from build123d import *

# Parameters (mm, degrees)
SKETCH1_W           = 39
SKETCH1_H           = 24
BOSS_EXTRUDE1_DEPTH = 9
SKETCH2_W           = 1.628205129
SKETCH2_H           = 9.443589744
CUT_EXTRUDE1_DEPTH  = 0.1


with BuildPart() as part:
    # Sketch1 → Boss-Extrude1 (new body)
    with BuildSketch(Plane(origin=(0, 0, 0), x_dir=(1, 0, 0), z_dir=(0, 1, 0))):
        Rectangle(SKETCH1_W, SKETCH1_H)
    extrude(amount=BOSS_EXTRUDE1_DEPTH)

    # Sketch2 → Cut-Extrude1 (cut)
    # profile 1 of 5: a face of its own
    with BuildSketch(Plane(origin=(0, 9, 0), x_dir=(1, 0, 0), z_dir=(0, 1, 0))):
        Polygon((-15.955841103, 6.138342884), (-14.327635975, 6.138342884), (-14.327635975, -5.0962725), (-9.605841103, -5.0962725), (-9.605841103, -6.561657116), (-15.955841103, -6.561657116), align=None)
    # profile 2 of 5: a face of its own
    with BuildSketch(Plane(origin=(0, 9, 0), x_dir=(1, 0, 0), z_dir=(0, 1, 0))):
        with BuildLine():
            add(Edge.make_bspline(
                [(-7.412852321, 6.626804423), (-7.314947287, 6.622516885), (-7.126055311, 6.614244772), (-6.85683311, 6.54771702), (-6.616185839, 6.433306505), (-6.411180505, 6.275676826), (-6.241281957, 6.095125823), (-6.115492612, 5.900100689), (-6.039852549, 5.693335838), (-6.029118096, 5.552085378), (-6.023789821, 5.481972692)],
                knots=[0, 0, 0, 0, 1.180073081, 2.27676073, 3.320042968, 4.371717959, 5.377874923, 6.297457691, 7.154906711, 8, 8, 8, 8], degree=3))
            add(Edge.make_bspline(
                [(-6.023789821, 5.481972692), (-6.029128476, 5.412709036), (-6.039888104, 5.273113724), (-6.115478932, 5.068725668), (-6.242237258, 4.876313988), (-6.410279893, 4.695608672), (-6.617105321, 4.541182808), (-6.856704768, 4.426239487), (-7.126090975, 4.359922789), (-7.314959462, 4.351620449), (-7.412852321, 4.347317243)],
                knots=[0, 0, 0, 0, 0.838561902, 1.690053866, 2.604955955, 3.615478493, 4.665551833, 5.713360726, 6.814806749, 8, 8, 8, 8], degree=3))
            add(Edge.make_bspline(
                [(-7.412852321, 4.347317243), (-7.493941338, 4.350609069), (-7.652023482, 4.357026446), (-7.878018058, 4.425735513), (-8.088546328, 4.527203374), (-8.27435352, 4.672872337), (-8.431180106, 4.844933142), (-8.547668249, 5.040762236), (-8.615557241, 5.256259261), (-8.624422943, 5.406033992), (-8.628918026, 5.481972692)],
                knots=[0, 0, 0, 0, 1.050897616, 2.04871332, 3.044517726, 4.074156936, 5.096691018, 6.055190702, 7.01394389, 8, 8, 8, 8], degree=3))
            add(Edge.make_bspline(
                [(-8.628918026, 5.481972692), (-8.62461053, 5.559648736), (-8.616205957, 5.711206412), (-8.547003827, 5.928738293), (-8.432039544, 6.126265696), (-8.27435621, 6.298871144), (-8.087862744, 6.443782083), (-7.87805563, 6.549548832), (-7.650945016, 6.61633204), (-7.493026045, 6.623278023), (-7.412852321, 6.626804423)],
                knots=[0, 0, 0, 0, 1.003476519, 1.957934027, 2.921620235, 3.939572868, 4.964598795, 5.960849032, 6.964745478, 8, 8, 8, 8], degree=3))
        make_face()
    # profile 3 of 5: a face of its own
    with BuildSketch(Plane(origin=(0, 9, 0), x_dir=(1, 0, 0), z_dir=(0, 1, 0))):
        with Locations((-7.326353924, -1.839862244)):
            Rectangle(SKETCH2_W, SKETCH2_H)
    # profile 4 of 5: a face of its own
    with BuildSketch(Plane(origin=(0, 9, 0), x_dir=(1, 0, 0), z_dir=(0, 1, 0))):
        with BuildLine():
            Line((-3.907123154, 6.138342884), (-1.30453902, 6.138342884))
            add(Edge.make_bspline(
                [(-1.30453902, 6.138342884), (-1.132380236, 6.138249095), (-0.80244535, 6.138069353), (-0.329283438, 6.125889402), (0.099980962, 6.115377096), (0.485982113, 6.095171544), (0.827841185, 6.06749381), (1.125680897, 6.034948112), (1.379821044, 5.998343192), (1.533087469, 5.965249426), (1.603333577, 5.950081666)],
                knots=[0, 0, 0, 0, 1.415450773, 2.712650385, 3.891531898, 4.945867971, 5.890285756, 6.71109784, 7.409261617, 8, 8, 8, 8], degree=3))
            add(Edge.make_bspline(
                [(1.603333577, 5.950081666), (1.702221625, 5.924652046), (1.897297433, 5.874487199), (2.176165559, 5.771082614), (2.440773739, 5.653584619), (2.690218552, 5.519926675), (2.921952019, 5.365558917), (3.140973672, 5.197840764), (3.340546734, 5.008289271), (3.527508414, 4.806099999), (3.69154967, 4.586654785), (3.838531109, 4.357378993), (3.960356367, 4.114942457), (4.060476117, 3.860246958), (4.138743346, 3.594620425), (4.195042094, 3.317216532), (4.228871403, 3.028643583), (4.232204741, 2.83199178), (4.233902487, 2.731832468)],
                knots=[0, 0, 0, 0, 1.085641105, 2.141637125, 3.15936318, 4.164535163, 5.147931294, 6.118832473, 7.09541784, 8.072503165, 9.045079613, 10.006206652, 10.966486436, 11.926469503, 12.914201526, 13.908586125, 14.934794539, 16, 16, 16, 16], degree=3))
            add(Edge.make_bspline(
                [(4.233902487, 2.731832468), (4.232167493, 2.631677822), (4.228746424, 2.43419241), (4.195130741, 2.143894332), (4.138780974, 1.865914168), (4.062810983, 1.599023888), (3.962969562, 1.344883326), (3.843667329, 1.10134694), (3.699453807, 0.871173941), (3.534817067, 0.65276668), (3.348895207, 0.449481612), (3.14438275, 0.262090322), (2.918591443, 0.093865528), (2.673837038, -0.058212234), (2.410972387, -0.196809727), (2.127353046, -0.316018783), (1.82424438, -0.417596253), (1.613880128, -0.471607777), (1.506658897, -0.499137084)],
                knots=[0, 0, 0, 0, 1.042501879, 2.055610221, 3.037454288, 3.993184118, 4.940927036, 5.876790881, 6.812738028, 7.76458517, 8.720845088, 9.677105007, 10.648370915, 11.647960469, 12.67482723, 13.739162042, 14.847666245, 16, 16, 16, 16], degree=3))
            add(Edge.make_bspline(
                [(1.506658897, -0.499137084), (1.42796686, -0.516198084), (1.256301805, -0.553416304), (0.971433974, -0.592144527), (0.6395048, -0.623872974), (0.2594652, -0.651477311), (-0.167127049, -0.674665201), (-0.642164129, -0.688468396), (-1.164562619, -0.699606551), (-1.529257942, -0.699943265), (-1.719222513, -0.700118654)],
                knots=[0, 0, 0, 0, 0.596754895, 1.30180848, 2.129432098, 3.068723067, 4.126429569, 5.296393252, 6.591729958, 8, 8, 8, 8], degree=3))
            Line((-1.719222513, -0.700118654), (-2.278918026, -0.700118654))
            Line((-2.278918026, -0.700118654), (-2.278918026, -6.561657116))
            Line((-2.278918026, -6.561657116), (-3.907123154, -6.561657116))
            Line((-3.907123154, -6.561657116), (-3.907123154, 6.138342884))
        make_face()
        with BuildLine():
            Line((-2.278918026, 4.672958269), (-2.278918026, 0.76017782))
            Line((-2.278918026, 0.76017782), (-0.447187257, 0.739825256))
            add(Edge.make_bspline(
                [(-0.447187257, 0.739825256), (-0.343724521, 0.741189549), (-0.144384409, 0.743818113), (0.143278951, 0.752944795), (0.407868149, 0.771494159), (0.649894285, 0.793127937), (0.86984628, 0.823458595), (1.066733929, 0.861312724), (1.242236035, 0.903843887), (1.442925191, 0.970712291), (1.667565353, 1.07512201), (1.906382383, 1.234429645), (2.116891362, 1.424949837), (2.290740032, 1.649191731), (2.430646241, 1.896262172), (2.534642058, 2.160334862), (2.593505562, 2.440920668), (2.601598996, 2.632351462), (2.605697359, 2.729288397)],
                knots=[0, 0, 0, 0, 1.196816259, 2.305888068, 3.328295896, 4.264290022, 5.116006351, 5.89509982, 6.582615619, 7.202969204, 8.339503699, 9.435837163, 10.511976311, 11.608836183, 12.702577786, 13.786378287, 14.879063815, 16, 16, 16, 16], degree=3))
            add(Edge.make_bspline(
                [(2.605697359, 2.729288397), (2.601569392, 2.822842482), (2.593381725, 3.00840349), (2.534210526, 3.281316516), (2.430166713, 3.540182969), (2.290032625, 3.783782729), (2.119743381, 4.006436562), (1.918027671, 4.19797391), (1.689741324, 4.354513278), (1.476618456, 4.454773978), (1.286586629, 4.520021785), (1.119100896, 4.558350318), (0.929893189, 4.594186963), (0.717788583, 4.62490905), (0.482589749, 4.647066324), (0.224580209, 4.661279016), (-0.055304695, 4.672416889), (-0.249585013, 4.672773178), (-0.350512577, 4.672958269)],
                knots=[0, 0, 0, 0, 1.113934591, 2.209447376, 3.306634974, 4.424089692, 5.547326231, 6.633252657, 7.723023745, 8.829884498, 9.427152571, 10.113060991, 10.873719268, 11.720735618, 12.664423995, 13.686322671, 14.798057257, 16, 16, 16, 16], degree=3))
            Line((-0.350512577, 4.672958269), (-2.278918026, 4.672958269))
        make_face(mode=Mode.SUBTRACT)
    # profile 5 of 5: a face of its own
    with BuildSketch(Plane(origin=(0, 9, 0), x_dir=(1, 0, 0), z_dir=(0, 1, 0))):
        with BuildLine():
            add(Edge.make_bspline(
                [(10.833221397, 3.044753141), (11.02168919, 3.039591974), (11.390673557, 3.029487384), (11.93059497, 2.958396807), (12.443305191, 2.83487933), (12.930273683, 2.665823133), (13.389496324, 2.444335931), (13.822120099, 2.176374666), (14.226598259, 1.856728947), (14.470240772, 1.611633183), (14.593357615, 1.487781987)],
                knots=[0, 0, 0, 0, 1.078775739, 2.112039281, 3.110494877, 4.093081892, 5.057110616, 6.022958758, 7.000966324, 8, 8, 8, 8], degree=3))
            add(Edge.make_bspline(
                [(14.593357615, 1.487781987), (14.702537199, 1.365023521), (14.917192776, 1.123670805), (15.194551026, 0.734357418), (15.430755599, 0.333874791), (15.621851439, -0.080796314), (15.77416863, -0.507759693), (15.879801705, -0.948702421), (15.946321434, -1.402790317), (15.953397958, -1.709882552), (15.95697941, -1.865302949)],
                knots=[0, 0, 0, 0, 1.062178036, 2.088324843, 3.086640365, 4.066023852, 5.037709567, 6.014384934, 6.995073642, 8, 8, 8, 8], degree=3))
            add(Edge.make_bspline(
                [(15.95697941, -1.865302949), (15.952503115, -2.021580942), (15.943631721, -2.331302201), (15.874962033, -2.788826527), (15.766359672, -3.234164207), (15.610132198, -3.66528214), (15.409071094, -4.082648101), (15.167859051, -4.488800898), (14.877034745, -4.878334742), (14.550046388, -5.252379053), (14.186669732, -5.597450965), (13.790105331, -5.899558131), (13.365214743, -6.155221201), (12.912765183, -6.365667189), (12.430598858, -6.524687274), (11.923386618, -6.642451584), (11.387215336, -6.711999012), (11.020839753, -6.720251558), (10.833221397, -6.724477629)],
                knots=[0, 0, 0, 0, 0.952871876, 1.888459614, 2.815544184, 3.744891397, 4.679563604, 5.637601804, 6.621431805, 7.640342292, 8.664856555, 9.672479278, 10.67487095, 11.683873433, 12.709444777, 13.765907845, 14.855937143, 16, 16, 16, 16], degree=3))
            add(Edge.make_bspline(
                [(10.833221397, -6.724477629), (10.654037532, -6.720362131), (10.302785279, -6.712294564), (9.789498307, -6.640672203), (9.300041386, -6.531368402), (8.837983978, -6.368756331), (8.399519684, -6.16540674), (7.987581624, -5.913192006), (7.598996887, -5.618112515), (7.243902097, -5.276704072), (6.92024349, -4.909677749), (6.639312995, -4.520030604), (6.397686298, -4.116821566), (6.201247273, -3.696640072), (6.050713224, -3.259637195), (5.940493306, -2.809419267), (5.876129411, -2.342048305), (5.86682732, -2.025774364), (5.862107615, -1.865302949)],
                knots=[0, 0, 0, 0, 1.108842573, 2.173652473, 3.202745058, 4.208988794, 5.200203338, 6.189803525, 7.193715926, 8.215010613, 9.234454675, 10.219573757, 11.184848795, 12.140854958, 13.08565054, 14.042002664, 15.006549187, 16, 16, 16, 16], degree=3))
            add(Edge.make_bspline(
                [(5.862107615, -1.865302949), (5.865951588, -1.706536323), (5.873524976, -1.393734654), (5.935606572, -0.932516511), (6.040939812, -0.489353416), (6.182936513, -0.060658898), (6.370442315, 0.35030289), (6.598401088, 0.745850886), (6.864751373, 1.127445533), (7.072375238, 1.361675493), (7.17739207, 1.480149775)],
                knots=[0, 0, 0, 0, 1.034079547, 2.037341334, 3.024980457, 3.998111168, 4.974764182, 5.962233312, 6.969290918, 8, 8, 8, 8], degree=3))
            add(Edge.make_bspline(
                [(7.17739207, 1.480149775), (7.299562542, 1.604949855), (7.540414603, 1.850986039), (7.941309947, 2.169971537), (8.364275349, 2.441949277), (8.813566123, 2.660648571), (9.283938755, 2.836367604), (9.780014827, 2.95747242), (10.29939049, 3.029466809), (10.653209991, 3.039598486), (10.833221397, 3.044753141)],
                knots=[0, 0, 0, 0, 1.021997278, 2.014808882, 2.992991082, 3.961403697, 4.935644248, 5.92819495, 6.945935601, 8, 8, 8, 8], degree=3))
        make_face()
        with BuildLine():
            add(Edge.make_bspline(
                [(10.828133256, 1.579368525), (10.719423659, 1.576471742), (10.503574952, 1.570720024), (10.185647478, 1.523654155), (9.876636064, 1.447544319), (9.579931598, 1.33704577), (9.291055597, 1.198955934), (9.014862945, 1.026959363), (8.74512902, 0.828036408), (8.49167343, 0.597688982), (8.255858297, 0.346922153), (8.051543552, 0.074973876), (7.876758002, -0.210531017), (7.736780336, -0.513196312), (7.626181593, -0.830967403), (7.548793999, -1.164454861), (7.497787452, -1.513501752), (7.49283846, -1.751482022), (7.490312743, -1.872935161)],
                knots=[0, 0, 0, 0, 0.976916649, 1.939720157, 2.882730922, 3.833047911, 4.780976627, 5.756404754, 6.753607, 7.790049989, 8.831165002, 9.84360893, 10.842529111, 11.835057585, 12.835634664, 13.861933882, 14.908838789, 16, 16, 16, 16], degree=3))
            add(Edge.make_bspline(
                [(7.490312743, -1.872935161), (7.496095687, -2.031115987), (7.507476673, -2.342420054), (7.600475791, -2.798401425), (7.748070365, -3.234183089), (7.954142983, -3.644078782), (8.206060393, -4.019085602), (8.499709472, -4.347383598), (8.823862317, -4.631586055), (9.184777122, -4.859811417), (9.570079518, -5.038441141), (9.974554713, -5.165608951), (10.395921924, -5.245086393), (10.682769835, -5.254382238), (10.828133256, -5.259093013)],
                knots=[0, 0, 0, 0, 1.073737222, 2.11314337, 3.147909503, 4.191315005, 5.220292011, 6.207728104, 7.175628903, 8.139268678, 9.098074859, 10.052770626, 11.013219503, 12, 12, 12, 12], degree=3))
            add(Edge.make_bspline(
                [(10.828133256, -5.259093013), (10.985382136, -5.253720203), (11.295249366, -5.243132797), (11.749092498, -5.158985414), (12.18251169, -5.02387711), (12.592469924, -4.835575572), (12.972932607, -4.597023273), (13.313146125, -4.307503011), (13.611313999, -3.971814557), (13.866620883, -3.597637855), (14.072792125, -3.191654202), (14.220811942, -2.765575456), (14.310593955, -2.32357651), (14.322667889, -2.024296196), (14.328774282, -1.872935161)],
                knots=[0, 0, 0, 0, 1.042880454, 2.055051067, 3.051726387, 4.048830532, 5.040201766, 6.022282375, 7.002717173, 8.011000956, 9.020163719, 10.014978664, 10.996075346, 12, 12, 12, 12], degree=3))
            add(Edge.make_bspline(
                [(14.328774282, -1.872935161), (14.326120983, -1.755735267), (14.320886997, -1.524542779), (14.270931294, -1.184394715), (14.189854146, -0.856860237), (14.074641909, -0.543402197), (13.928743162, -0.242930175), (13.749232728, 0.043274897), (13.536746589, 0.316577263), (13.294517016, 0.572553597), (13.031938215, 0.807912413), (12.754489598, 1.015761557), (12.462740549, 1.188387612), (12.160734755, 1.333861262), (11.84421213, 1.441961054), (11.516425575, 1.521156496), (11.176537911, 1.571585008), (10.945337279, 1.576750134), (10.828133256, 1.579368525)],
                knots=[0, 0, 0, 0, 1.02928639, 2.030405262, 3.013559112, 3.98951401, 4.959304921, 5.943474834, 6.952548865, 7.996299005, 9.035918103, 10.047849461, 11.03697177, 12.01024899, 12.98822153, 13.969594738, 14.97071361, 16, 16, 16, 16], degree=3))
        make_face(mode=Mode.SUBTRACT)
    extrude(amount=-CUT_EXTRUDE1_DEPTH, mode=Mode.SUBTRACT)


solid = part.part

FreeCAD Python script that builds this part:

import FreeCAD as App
import Part
import Sketcher

V = App.Vector


def add_polygon(sketch, points):
    """Adds a closed chain of lines whose ends are joined by coincident constraints."""
    first, n = sketch.GeometryCount, len(points)
    for a, b in zip(points, points[1:] + points[:1]):
        sketch.addGeometry(Part.LineSegment(App.Vector(*a, 0), App.Vector(*b, 0)), False)
    for i in range(n):
        sketch.addConstraint(Sketcher.Constraint("Coincident", first + i, 2, first + (i + 1) % n, 1))

doc = App.newDocument("Part")
body = doc.addObject("PartDesign::Body", "Body")

# Sketch on XZ plane
sketch1 = body.newObject("Sketcher::SketchObject", "Sketch")
sketch1.AttachmentSupport = (doc.getObject("XZ_Plane"), [""])
sketch1.MapMode = "FlatFace"
add_polygon(sketch1, [(-19.5, -12), (-19.5, 12), (19.5, 12), (19.5, -12)])  # lines 0-3
sketch1.addConstraint([
    Sketcher.Constraint("Vertical", 0),
    Sketcher.Constraint("Horizontal", 1),
    Sketcher.Constraint("Vertical", 2),
    Sketcher.Constraint("Horizontal", 3),
    Sketcher.Constraint("Symmetric", 0, 2, 2, 2, -1, 1),
    Sketcher.Constraint("DistanceX", 1, 1, 1, 2, 39.0),
    Sketcher.Constraint("DistanceY", 0, 1, 0, 2, 24.0),
])
pad1 = body.newObject("PartDesign::Pad", "Pad")
pad1.Profile = sketch1
pad1.Length = 9
pad1.Reversed = True

# Sketch on XZ plane
sketch2 = body.newObject("Sketcher::SketchObject", "Sketch001")
sketch2.AttachmentSupport = (doc.getObject("XZ_Plane"), [""])
sketch2.MapMode = "FlatFace"
sketch2.AttachmentOffset = App.Placement(V(0, 0, -9), App.Rotation())
add_polygon(sketch2, [(-14.327636, -6.138343), (-15.955841, -6.138343), (-15.955841, 6.561657), (-9.605841, 6.561657), (-9.605841, 5.096273), (-14.327636, 5.096273)])  # lines 0-5
sketch2.addGeometry(Part.BSplineCurve([V(-7.412852, -6.626804, 0), V(-7.314947, -6.622517, 0), V(-7.126055, -6.614245, 0), V(-6.856833, -6.547717, 0), V(-6.616186, -6.433307, 0), V(-6.411181, -6.275677, 0), V(-6.241282, -6.095126, 0), V(-6.115493, -5.900101, 0), V(-6.039853, -5.693336, 0), V(-6.029118, -5.552085, 0), V(-6.02379, -5.481973, 0)], [4, 1, 1, 1, 1, 1, 1, 1, 4], [0, 1.180073081, 2.27676073, 3.320042968, 4.371717959, 5.377874923, 6.297457691, 7.154906711, 8], False, 3, [1, 1, 1, 1, 1, 1, 1, 1, 1, 1, 1], False), False)  # 6
sketch2.addGeometry(Part.BSplineCurve([V(-8.628918, -5.481973, 0), V(-8.624611, -5.559649, 0), V(-8.616206, -5.711206, 0), V(-8.547004, -5.928738, 0), V(-8.43204, -6.126266, 0), V(-8.274356, -6.298871, 0), V(-8.087863, -6.443782, 0), V(-7.878056, -6.549549, 0), V(-7.650945, -6.616332, 0), V(-7.493026, -6.623278, 0), V(-7.412852, -6.626804, 0)], [4, 1, 1, 1, 1, 1, 1, 1, 4], [0, 1.003476519, 1.957934027, 2.921620235, 3.939572868, 4.964598795, 5.960849032, 6.964745478, 8], False, 3, [1, 1, 1, 1, 1, 1, 1, 1, 1, 1, 1], False), False)  # 7
sketch2.addGeometry(Part.BSplineCurve([V(-7.412852, -4.347317, 0), V(-7.493941, -4.350609, 0), V(-7.652023, -4.357026, 0), V(-7.878018, -4.425736, 0), V(-8.088546, -4.527203, 0), V(-8.274354, -4.672872, 0), V(-8.43118, -4.844933, 0), V(-8.547668, -5.040762, 0), V(-8.615557, -5.256259, 0), V(-8.624423, -5.406034, 0), V(-8.628918, -5.481973, 0)], [4, 1, 1, 1, 1, 1, 1, 1, 4], [0, 1.050897616, 2.04871332, 3.044517726, 4.074156936, 5.096691018, 6.055190702, 7.01394389, 8], False, 3, [1, 1, 1, 1, 1, 1, 1, 1, 1, 1, 1], False), False)  # 8
sketch2.addGeometry(Part.BSplineCurve([V(-6.02379, -5.481973, 0), V(-6.029128, -5.412709, 0), V(-6.039888, -5.273114, 0), V(-6.115479, -5.068726, 0), V(-6.242237, -4.876314, 0), V(-6.41028, -4.695609, 0), V(-6.617105, -4.541183, 0), V(-6.856705, -4.426239, 0), V(-7.126091, -4.359923, 0), V(-7.314959, -4.35162, 0), V(-7.412852, -4.347317, 0)], [4, 1, 1, 1, 1, 1, 1, 1, 4], [0, 0.838561902, 1.690053866, 2.604955955, 3.615478493, 4.665551833, 5.713360726, 6.814806749, 8], False, 3, [1, 1, 1, 1, 1, 1, 1, 1, 1, 1, 1], False), False)  # 9
add_polygon(sketch2, [(-8.140456, -2.881933), (-8.140456, 6.561657), (-6.512251, 6.561657), (-6.512251, -2.881933)])  # lines 10-13
sketch2.addGeometry(Part.LineSegment(V(-1.304539, -6.138343, 0), V(-3.907123, -6.138343, 0)), False)  # 14
sketch2.addGeometry(Part.LineSegment(V(-3.907123, -6.138343, 0), V(-3.907123, 6.561657, 0)), False)  # 15
sketch2.addGeometry(Part.LineSegment(V(-3.907123, 6.561657, 0), V(-2.278918, 6.561657, 0)), False)  # 16
sketch2.addGeometry(Part.LineSegment(V(-2.278918, 6.561657, 0), V(-2.278918, 0.700119, 0)), False)  # 17
sketch2.addGeometry(Part.LineSegment(V(-2.278918, 0.700119, 0), V(-1.719223, 0.700119, 0)), False)  # 18
sketch2.addGeometry(Part.BSplineCurve([V(1.506659, 0.499137, 0), V(1.427967, 0.516198, 0), V(1.256302, 0.553416, 0), V(0.971434, 0.592145, 0), V(0.639505, 0.623873, 0), V(0.259465, 0.651477, 0), V(-0.167127, 0.674665, 0), V(-0.642164, 0.688468, 0), V(-1.164563, 0.699607, 0), V(-1.529258, 0.699943, 0), V(-1.719223, 0.700119, 0)], [4, 1, 1, 1, 1, 1, 1, 1, 4], [0, 0.596754895, 1.30180848, 2.129432098, 3.068723067, 4.126429569, 5.296393252, 6.591729958, 8], False, 3, [1, 1, 1, 1, 1, 1, 1, 1, 1, 1, 1], False), False)  # 19
sketch2.addGeometry(Part.BSplineCurve([V(4.233902, -2.731832, 0), V(4.232167, -2.631678, 0), V(4.228746, -2.434192, 0), V(4.195131, -2.143894, 0), V(4.138781, -1.865914, 0), V(4.062811, -1.599024, 0), V(3.96297, -1.344883, 0), V(3.843667, -1.101347, 0), V(3.699454, -0.871174, 0), V(3.534817, -0.652767, 0), V(3.348895, -0.449482, 0), V(3.144383, -0.26209, 0), V(2.918591, -0.093866, 0), V(2.673837, 0.058212, 0), V(2.410972, 0.19681, 0), V(2.127353, 0.316019, 0), V(1.824244, 0.417596, 0), V(1.61388, 0.471608, 0), V(1.506659, 0.499137, 0)], [4, 1, 1, 1, 1, 1, 1, 1, 1, 1, 1, 1, 1, 1, 1, 1, 4], [0, 1.042501879, 2.055610221, 3.037454288, 3.993184118, 4.940927036, 5.876790881, 6.812738028, 7.76458517, 8.720845088, 9.677105007, 10.648370915, 11.647960469, 12.67482723, 13.739162042, 14.847666245, 16], False, 3, [1, 1, 1, 1, 1, 1, 1, 1, 1, 1, 1, 1, 1, 1, 1, 1, 1, 1, 1], False), False)  # 20
sketch2.addGeometry(Part.BSplineCurve([V(1.603334, -5.950082, 0), V(1.702222, -5.924652, 0), V(1.897297, -5.874487, 0), V(2.176166, -5.771083, 0), V(2.440774, -5.653585, 0), V(2.690219, -5.519927, 0), V(2.921952, -5.365559, 0), V(3.140974, -5.197841, 0), V(3.340547, -5.008289, 0), V(3.527508, -4.8061, 0), V(3.69155, -4.586655, 0), V(3.838531, -4.357379, 0), V(3.960356, -4.114942, 0), V(4.060476, -3.860247, 0), V(4.138743, -3.59462, 0), V(4.195042, -3.317217, 0), V(4.228871, -3.028644, 0), V(4.232205, -2.831992, 0), V(4.233902, -2.731832, 0)], [4, 1, 1, 1, 1, 1, 1, 1, 1, 1, 1, 1, 1, 1, 1, 1, 4], [0, 1.085641105, 2.141637125, 3.15936318, 4.164535163, 5.147931294, 6.118832473, 7.09541784, 8.072503165, 9.045079613, 10.006206652, 10.966486436, 11.926469503, 12.914201526, 13.908586125, 14.934794539, 16], False, 3, [1, 1, 1, 1, 1, 1, 1, 1, 1, 1, 1, 1, 1, 1, 1, 1, 1, 1, 1], False), False)  # 21
sketch2.addGeometry(Part.BSplineCurve([V(-1.304539, -6.138343, 0), V(-1.13238, -6.138249, 0), V(-0.802445, -6.138069, 0), V(-0.329283, -6.125889, 0), V(0.099981, -6.115377, 0), V(0.485982, -6.095172, 0), V(0.827841, -6.067494, 0), V(1.125681, -6.034948, 0), V(1.379821, -5.998343, 0), V(1.533087, -5.965249, 0), V(1.603334, -5.950082, 0)], [4, 1, 1, 1, 1, 1, 1, 1, 4], [0, 1.415450773, 2.712650385, 3.891531898, 4.945867971, 5.890285756, 6.71109784, 7.409261617, 8], False, 3, [1, 1, 1, 1, 1, 1, 1, 1, 1, 1, 1], False), False)  # 22
sketch2.addGeometry(Part.LineSegment(V(-2.278918, -4.672958, 0), V(-0.350513, -4.672958, 0)), False)  # 23
sketch2.addGeometry(Part.BSplineCurve([V(2.605697, -2.729288, 0), V(2.601569, -2.822842, 0), V(2.593382, -3.008403, 0), V(2.534211, -3.281317, 0), V(2.430167, -3.540183, 0), V(2.290033, -3.783783, 0), V(2.119743, -4.006437, 0), V(1.918028, -4.197974, 0), V(1.689741, -4.354513, 0), V(1.476618, -4.454774, 0), V(1.286587, -4.520022, 0), V(1.119101, -4.55835, 0), V(0.929893, -4.594187, 0), V(0.717789, -4.624909, 0), V(0.48259, -4.647066, 0), V(0.22458, -4.661279, 0), V(-0.055305, -4.672417, 0), V(-0.249585, -4.672773, 0), V(-0.350513, -4.672958, 0)], [4, 1, 1, 1, 1, 1, 1, 1, 1, 1, 1, 1, 1, 1, 1, 1, 4], [0, 1.113934591, 2.209447376, 3.306634974, 4.424089692, 5.547326231, 6.633252657, 7.723023745, 8.829884498, 9.427152571, 10.113060991, 10.873719268, 11.720735618, 12.664423995, 13.686322671, 14.798057257, 16], False, 3, [1, 1, 1, 1, 1, 1, 1, 1, 1, 1, 1, 1, 1, 1, 1, 1, 1, 1, 1], False), False)  # 24
sketch2.addGeometry(Part.BSplineCurve([V(-0.447187, -0.739825, 0), V(-0.343725, -0.74119, 0), V(-0.144384, -0.743818, 0), V(0.143279, -0.752945, 0), V(0.407868, -0.771494, 0), V(0.649894, -0.793128, 0), V(0.869846, -0.823459, 0), V(1.066734, -0.861313, 0), V(1.242236, -0.903844, 0), V(1.442925, -0.970712, 0), V(1.667565, -1.075122, 0), V(1.906382, -1.23443, 0), V(2.116891, -1.42495, 0), V(2.29074, -1.649192, 0), V(2.430646, -1.896262, 0), V(2.534642, -2.160335, 0), V(2.593506, -2.440921, 0), V(2.601599, -2.632351, 0), V(2.605697, -2.729288, 0)], [4, 1, 1, 1, 1, 1, 1, 1, 1, 1, 1, 1, 1, 1, 1, 1, 4], [0, 1.196816259, 2.305888068, 3.328295896, 4.264290022, 5.116006351, 5.89509982, 6.582615619, 7.202969204, 8.339503699, 9.435837163, 10.511976311, 11.608836183, 12.702577786, 13.786378287, 14.879063815, 16], False, 3, [1, 1, 1, 1, 1, 1, 1, 1, 1, 1, 1, 1, 1, 1, 1, 1, 1, 1, 1], False), False)  # 25
sketch2.addGeometry(Part.LineSegment(V(-0.447187, -0.739825, 0), V(-2.278918, -0.760178, 0)), False)  # 26
sketch2.addGeometry(Part.LineSegment(V(-2.278918, -0.760178, 0), V(-2.278918, -4.672958, 0)), False)  # 27
sketch2.addGeometry(Part.BSplineCurve([V(10.833221, -3.044753, 0), V(11.021689, -3.039592, 0), V(11.390674, -3.029487, 0), V(11.930595, -2.958397, 0), V(12.443305, -2.834879, 0), V(12.930274, -2.665823, 0), V(13.389496, -2.444336, 0), V(13.82212, -2.176375, 0), V(14.226598, -1.856729, 0), V(14.470241, -1.611633, 0), V(14.593358, -1.487782, 0)], [4, 1, 1, 1, 1, 1, 1, 1, 4], [0, 1.078775739, 2.112039281, 3.110494877, 4.093081892, 5.057110616, 6.022958758, 7.000966324, 8], False, 3, [1, 1, 1, 1, 1, 1, 1, 1, 1, 1, 1], False), False)  # 28
sketch2.addGeometry(Part.BSplineCurve([V(7.177392, -1.48015, 0), V(7.299563, -1.60495, 0), V(7.540415, -1.850986, 0), V(7.94131, -2.169972, 0), V(8.364275, -2.441949, 0), V(8.813566, -2.660649, 0), V(9.283939, -2.836368, 0), V(9.780015, -2.957472, 0), V(10.29939, -3.029467, 0), V(10.65321, -3.039598, 0), V(10.833221, -3.044753, 0)], [4, 1, 1, 1, 1, 1, 1, 1, 4], [0, 1.021997278, 2.014808882, 2.992991082, 3.961403697, 4.935644248, 5.92819495, 6.945935601, 8], False, 3, [1, 1, 1, 1, 1, 1, 1, 1, 1, 1, 1], False), False)  # 29
sketch2.addGeometry(Part.BSplineCurve([V(5.862108, 1.865303, 0), V(5.865952, 1.706536, 0), V(5.873525, 1.393735, 0), V(5.935607, 0.932517, 0), V(6.04094, 0.489353, 0), V(6.182937, 0.060659, 0), V(6.370442, -0.350303, 0), V(6.598401, -0.745851, 0), V(6.864751, -1.127446, 0), V(7.072375, -1.361675, 0), V(7.177392, -1.48015, 0)], [4, 1, 1, 1, 1, 1, 1, 1, 4], [0, 1.034079547, 2.037341334, 3.024980457, 3.998111168, 4.974764182, 5.962233312, 6.969290918, 8], False, 3, [1, 1, 1, 1, 1, 1, 1, 1, 1, 1, 1], False), False)  # 30
sketch2.addGeometry(Part.BSplineCurve([V(10.833221, 6.724478, 0), V(10.654038, 6.720362, 0), V(10.302785, 6.712295, 0), V(9.789498, 6.640672, 0), V(9.300041, 6.531368, 0), V(8.837984, 6.368756, 0), V(8.39952, 6.165407, 0), V(7.987582, 5.913192, 0), V(7.598997, 5.618113, 0), V(7.243902, 5.276704, 0), V(6.920243, 4.909678, 0), V(6.639313, 4.520031, 0), V(6.397686, 4.116822, 0), V(6.201247, 3.69664, 0), V(6.050713, 3.259637, 0), V(5.940493, 2.809419, 0), V(5.876129, 2.342048, 0), V(5.866827, 2.025774, 0), V(5.862108, 1.865303, 0)], [4, 1, 1, 1, 1, 1, 1, 1, 1, 1, 1, 1, 1, 1, 1, 1, 4], [0, 1.108842573, 2.173652473, 3.202745058, 4.208988794, 5.200203338, 6.189803525, 7.193715926, 8.215010613, 9.234454675, 10.219573757, 11.184848795, 12.140854958, 13.08565054, 14.042002664, 15.006549187, 16], False, 3, [1, 1, 1, 1, 1, 1, 1, 1, 1, 1, 1, 1, 1, 1, 1, 1, 1, 1, 1], False), False)  # 31
sketch2.addGeometry(Part.BSplineCurve([V(15.956979, 1.865303, 0), V(15.952503, 2.021581, 0), V(15.943632, 2.331302, 0), V(15.874962, 2.788827, 0), V(15.76636, 3.234164, 0), V(15.610132, 3.665282, 0), V(15.409071, 4.082648, 0), V(15.167859, 4.488801, 0), V(14.877035, 4.878335, 0), V(14.550046, 5.252379, 0), V(14.18667, 5.597451, 0), V(13.790105, 5.899558, 0), V(13.365215, 6.155221, 0), V(12.912765, 6.365667, 0), V(12.430599, 6.524687, 0), V(11.923387, 6.642452, 0), V(11.387215, 6.711999, 0), V(11.02084, 6.720252, 0), V(10.833221, 6.724478, 0)], [4, 1, 1, 1, 1, 1, 1, 1, 1, 1, 1, 1, 1, 1, 1, 1, 4], [0, 0.952871876, 1.888459614, 2.815544184, 3.744891397, 4.679563604, 5.637601804, 6.621431805, 7.640342292, 8.664856555, 9.672479278, 10.67487095, 11.683873433, 12.709444777, 13.765907845, 14.855937143, 16], False, 3, [1, 1, 1, 1, 1, 1, 1, 1, 1, 1, 1, 1, 1, 1, 1, 1, 1, 1, 1], False), False)  # 32
sketch2.addGeometry(Part.BSplineCurve([V(14.593358, -1.487782, 0), V(14.702537, -1.365024, 0), V(14.917193, -1.123671, 0), V(15.194551, -0.734357, 0), V(15.430756, -0.333875, 0), V(15.621851, 0.080796, 0), V(15.774169, 0.50776, 0), V(15.879802, 0.948702, 0), V(15.946321, 1.40279, 0), V(15.953398, 1.709883, 0), V(15.956979, 1.865303, 0)], [4, 1, 1, 1, 1, 1, 1, 1, 4], [0, 1.062178036, 2.088324843, 3.086640365, 4.066023852, 5.037709567, 6.014384934, 6.995073642, 8], False, 3, [1, 1, 1, 1, 1, 1, 1, 1, 1, 1, 1], False), False)  # 33
sketch2.addGeometry(Part.BSplineCurve([V(14.328774, 1.872935, 0), V(14.326121, 1.755735, 0), V(14.320887, 1.524543, 0), V(14.270931, 1.184395, 0), V(14.189854, 0.85686, 0), V(14.074642, 0.543402, 0), V(13.928743, 0.24293, 0), V(13.749233, -0.043275, 0), V(13.536747, -0.316577, 0), V(13.294517, -0.572554, 0), V(13.031938, -0.807912, 0), V(12.75449, -1.015762, 0), V(12.462741, -1.188388, 0), V(12.160735, -1.333861, 0), V(11.844212, -1.441961, 0), V(11.516426, -1.521156, 0), V(11.176538, -1.571585, 0), V(10.945337, -1.57675, 0), V(10.828133, -1.579369, 0)], [4, 1, 1, 1, 1, 1, 1, 1, 1, 1, 1, 1, 1, 1, 1, 1, 4], [0, 1.02928639, 2.030405262, 3.013559112, 3.98951401, 4.959304921, 5.943474834, 6.952548865, 7.996299005, 9.035918103, 10.047849461, 11.03697177, 12.01024899, 12.98822153, 13.969594738, 14.97071361, 16], False, 3, [1, 1, 1, 1, 1, 1, 1, 1, 1, 1, 1, 1, 1, 1, 1, 1, 1, 1, 1], False), False)  # 34
sketch2.addGeometry(Part.BSplineCurve([V(10.828133, 5.259093, 0), V(10.985382, 5.25372, 0), V(11.295249, 5.243133, 0), V(11.749092, 5.158985, 0), V(12.182512, 5.023877, 0), V(12.59247, 4.835576, 0), V(12.972933, 4.597023, 0), V(13.313146, 4.307503, 0), V(13.611314, 3.971815, 0), V(13.866621, 3.597638, 0), V(14.072792, 3.191654, 0), V(14.220812, 2.765575, 0), V(14.310594, 2.323577, 0), V(14.322668, 2.024296, 0), V(14.328774, 1.872935, 0)], [4, 1, 1, 1, 1, 1, 1, 1, 1, 1, 1, 1, 4], [0, 1.042880454, 2.055051067, 3.051726387, 4.048830532, 5.040201766, 6.022282375, 7.002717173, 8.011000956, 9.020163719, 10.014978664, 10.996075346, 12], False, 3, [1, 1, 1, 1, 1, 1, 1, 1, 1, 1, 1, 1, 1, 1, 1], False), False)  # 35
sketch2.addGeometry(Part.BSplineCurve([V(7.490313, 1.872935, 0), V(7.496096, 2.031116, 0), V(7.507477, 2.34242, 0), V(7.600476, 2.798401, 0), V(7.74807, 3.234183, 0), V(7.954143, 3.644079, 0), V(8.20606, 4.019086, 0), V(8.499709, 4.347384, 0), V(8.823862, 4.631586, 0), V(9.184777, 4.859811, 0), V(9.57008, 5.038441, 0), V(9.974555, 5.165609, 0), V(10.395922, 5.245086, 0), V(10.68277, 5.254382, 0), V(10.828133, 5.259093, 0)], [4, 1, 1, 1, 1, 1, 1, 1, 1, 1, 1, 1, 4], [0, 1.073737222, 2.11314337, 3.147909503, 4.191315005, 5.220292011, 6.207728104, 7.175628903, 8.139268678, 9.098074859, 10.052770626, 11.013219503, 12], False, 3, [1, 1, 1, 1, 1, 1, 1, 1, 1, 1, 1, 1, 1, 1, 1], False), False)  # 36
sketch2.addGeometry(Part.BSplineCurve([V(10.828133, -1.579369, 0), V(10.719424, -1.576472, 0), V(10.503575, -1.57072, 0), V(10.185647, -1.523654, 0), V(9.876636, -1.447544, 0), V(9.579932, -1.337046, 0), V(9.291056, -1.198956, 0), V(9.014863, -1.026959, 0), V(8.745129, -0.828036, 0), V(8.491673, -0.597689, 0), V(8.255858, -0.346922, 0), V(8.051544, -0.074974, 0), V(7.876758, 0.210531, 0), V(7.73678, 0.513196, 0), V(7.626182, 0.830967, 0), V(7.548794, 1.164455, 0), V(7.497787, 1.513502, 0), V(7.492838, 1.751482, 0), V(7.490313, 1.872935, 0)], [4, 1, 1, 1, 1, 1, 1, 1, 1, 1, 1, 1, 1, 1, 1, 1, 4], [0, 0.976916649, 1.939720157, 2.882730922, 3.833047911, 4.780976627, 5.756404754, 6.753607, 7.790049989, 8.831165002, 9.84360893, 10.842529111, 11.835057585, 12.835634664, 13.861933882, 14.908838789, 16], False, 3, [1, 1, 1, 1, 1, 1, 1, 1, 1, 1, 1, 1, 1, 1, 1, 1, 1, 1, 1], False), False)  # 37
sketch2.addConstraint([
    Sketcher.Constraint("Block", 6),
    Sketcher.Constraint("Block", 7),
    Sketcher.Constraint("Block", 8),
    Sketcher.Constraint("Block", 9),
    Sketcher.Constraint("Block", 19),
    Sketcher.Constraint("Block", 20),
    Sketcher.Constraint("Block", 21),
    Sketcher.Constraint("Block", 22),
    Sketcher.Constraint("Block", 24),
    Sketcher.Constraint("Block", 25),
    Sketcher.Constraint("Block", 28),
    Sketcher.Constraint("Block", 29),
    Sketcher.Constraint("Block", 30),
    Sketcher.Constraint("Block", 31),
    Sketcher.Constraint("Block", 32),
    Sketcher.Constraint("Block", 33),
    Sketcher.Constraint("Block", 34),
    Sketcher.Constraint("Block", 35),
    Sketcher.Constraint("Block", 36),
    Sketcher.Constraint("Block", 37),
    Sketcher.Constraint("Coincident", 14, 2, 15, 1),
    Sketcher.Constraint("Coincident", 15, 2, 16, 1),
    Sketcher.Constraint("Coincident", 16, 2, 17, 1),
    Sketcher.Constraint("Coincident", 17, 2, 18, 1),
    Sketcher.Constraint("Coincident", 18, 2, 19, 2),
    Sketcher.Constraint("Coincident", 22, 1, 14, 1),
    Sketcher.Constraint("Coincident", 23, 2, 24, 2),
    Sketcher.Constraint("Coincident", 25, 1, 26, 1),
    Sketcher.Constraint("Coincident", 26, 2, 27, 1),
    Sketcher.Constraint("Coincident", 27, 2, 23, 1),
    Sketcher.Constraint("Horizontal", 0),
    Sketcher.Constraint("Vertical", 1),
    Sketcher.Constraint("Horizontal", 2),
    Sketcher.Constraint("Vertical", 3),
    Sketcher.Constraint("Horizontal", 4),
    Sketcher.Constraint("Vertical", 5),
    Sketcher.Constraint("Vertical", 10),
    Sketcher.Constraint("Horizontal", 11),
    Sketcher.Constraint("Vertical", 12),
    Sketcher.Constraint("Horizontal", 13),
    Sketcher.Constraint("Horizontal", 14),
    Sketcher.Constraint("Vertical", 15),
    Sketcher.Constraint("Horizontal", 16),
    Sketcher.Constraint("Vertical", 17),
    Sketcher.Constraint("Horizontal", 18),
    Sketcher.Constraint("Horizontal", 23),
    Sketcher.Constraint("Vertical", 27),
    Sketcher.Constraint("Horizontal", 2, 2, 10, 2),
    Sketcher.Constraint("Horizontal", 5, 2, 14, 2),
    Sketcher.Constraint("Horizontal", 11, 2, 15, 2),
    Sketcher.Constraint("Vertical", 17, 2, 26, 2),
    Sketcher.Constraint("Equal", 0, 11),
    Sketcher.Constraint("Equal", 13, 16),
    Sketcher.Constraint("DistanceY", 1, 1, 1, 2, 12.7),
    Sketcher.Constraint("DistanceX", 2, 1, 2, 2, 6.35),
    Sketcher.Constraint("DistanceY", 10, 1, 10, 2, 9.44359),
    Sketcher.Constraint("DistanceY", 27, 2, 27, 1, 3.91278),
    Sketcher.Constraint("DistanceX", 15, 2, 18, 2, 2.187901),
    Sketcher.Constraint("DistanceX", 0, 2, 0, 1, 1.628205),
    Sketcher.Constraint("DistanceY", 3, 2, 3, 1, 1.465385),
    Sketcher.Constraint("DistanceX", 0, 2, -1, 1, 15.955841),
    Sketcher.Constraint("DistanceX", 11, 2, -1, 1, 6.512251),
])
pocket1 = body.newObject("PartDesign::Pocket", "Pocket")
pocket1.Profile = sketch2
pocket1.Length = 0.1
pocket1.Reversed = True

doc.recompute()
